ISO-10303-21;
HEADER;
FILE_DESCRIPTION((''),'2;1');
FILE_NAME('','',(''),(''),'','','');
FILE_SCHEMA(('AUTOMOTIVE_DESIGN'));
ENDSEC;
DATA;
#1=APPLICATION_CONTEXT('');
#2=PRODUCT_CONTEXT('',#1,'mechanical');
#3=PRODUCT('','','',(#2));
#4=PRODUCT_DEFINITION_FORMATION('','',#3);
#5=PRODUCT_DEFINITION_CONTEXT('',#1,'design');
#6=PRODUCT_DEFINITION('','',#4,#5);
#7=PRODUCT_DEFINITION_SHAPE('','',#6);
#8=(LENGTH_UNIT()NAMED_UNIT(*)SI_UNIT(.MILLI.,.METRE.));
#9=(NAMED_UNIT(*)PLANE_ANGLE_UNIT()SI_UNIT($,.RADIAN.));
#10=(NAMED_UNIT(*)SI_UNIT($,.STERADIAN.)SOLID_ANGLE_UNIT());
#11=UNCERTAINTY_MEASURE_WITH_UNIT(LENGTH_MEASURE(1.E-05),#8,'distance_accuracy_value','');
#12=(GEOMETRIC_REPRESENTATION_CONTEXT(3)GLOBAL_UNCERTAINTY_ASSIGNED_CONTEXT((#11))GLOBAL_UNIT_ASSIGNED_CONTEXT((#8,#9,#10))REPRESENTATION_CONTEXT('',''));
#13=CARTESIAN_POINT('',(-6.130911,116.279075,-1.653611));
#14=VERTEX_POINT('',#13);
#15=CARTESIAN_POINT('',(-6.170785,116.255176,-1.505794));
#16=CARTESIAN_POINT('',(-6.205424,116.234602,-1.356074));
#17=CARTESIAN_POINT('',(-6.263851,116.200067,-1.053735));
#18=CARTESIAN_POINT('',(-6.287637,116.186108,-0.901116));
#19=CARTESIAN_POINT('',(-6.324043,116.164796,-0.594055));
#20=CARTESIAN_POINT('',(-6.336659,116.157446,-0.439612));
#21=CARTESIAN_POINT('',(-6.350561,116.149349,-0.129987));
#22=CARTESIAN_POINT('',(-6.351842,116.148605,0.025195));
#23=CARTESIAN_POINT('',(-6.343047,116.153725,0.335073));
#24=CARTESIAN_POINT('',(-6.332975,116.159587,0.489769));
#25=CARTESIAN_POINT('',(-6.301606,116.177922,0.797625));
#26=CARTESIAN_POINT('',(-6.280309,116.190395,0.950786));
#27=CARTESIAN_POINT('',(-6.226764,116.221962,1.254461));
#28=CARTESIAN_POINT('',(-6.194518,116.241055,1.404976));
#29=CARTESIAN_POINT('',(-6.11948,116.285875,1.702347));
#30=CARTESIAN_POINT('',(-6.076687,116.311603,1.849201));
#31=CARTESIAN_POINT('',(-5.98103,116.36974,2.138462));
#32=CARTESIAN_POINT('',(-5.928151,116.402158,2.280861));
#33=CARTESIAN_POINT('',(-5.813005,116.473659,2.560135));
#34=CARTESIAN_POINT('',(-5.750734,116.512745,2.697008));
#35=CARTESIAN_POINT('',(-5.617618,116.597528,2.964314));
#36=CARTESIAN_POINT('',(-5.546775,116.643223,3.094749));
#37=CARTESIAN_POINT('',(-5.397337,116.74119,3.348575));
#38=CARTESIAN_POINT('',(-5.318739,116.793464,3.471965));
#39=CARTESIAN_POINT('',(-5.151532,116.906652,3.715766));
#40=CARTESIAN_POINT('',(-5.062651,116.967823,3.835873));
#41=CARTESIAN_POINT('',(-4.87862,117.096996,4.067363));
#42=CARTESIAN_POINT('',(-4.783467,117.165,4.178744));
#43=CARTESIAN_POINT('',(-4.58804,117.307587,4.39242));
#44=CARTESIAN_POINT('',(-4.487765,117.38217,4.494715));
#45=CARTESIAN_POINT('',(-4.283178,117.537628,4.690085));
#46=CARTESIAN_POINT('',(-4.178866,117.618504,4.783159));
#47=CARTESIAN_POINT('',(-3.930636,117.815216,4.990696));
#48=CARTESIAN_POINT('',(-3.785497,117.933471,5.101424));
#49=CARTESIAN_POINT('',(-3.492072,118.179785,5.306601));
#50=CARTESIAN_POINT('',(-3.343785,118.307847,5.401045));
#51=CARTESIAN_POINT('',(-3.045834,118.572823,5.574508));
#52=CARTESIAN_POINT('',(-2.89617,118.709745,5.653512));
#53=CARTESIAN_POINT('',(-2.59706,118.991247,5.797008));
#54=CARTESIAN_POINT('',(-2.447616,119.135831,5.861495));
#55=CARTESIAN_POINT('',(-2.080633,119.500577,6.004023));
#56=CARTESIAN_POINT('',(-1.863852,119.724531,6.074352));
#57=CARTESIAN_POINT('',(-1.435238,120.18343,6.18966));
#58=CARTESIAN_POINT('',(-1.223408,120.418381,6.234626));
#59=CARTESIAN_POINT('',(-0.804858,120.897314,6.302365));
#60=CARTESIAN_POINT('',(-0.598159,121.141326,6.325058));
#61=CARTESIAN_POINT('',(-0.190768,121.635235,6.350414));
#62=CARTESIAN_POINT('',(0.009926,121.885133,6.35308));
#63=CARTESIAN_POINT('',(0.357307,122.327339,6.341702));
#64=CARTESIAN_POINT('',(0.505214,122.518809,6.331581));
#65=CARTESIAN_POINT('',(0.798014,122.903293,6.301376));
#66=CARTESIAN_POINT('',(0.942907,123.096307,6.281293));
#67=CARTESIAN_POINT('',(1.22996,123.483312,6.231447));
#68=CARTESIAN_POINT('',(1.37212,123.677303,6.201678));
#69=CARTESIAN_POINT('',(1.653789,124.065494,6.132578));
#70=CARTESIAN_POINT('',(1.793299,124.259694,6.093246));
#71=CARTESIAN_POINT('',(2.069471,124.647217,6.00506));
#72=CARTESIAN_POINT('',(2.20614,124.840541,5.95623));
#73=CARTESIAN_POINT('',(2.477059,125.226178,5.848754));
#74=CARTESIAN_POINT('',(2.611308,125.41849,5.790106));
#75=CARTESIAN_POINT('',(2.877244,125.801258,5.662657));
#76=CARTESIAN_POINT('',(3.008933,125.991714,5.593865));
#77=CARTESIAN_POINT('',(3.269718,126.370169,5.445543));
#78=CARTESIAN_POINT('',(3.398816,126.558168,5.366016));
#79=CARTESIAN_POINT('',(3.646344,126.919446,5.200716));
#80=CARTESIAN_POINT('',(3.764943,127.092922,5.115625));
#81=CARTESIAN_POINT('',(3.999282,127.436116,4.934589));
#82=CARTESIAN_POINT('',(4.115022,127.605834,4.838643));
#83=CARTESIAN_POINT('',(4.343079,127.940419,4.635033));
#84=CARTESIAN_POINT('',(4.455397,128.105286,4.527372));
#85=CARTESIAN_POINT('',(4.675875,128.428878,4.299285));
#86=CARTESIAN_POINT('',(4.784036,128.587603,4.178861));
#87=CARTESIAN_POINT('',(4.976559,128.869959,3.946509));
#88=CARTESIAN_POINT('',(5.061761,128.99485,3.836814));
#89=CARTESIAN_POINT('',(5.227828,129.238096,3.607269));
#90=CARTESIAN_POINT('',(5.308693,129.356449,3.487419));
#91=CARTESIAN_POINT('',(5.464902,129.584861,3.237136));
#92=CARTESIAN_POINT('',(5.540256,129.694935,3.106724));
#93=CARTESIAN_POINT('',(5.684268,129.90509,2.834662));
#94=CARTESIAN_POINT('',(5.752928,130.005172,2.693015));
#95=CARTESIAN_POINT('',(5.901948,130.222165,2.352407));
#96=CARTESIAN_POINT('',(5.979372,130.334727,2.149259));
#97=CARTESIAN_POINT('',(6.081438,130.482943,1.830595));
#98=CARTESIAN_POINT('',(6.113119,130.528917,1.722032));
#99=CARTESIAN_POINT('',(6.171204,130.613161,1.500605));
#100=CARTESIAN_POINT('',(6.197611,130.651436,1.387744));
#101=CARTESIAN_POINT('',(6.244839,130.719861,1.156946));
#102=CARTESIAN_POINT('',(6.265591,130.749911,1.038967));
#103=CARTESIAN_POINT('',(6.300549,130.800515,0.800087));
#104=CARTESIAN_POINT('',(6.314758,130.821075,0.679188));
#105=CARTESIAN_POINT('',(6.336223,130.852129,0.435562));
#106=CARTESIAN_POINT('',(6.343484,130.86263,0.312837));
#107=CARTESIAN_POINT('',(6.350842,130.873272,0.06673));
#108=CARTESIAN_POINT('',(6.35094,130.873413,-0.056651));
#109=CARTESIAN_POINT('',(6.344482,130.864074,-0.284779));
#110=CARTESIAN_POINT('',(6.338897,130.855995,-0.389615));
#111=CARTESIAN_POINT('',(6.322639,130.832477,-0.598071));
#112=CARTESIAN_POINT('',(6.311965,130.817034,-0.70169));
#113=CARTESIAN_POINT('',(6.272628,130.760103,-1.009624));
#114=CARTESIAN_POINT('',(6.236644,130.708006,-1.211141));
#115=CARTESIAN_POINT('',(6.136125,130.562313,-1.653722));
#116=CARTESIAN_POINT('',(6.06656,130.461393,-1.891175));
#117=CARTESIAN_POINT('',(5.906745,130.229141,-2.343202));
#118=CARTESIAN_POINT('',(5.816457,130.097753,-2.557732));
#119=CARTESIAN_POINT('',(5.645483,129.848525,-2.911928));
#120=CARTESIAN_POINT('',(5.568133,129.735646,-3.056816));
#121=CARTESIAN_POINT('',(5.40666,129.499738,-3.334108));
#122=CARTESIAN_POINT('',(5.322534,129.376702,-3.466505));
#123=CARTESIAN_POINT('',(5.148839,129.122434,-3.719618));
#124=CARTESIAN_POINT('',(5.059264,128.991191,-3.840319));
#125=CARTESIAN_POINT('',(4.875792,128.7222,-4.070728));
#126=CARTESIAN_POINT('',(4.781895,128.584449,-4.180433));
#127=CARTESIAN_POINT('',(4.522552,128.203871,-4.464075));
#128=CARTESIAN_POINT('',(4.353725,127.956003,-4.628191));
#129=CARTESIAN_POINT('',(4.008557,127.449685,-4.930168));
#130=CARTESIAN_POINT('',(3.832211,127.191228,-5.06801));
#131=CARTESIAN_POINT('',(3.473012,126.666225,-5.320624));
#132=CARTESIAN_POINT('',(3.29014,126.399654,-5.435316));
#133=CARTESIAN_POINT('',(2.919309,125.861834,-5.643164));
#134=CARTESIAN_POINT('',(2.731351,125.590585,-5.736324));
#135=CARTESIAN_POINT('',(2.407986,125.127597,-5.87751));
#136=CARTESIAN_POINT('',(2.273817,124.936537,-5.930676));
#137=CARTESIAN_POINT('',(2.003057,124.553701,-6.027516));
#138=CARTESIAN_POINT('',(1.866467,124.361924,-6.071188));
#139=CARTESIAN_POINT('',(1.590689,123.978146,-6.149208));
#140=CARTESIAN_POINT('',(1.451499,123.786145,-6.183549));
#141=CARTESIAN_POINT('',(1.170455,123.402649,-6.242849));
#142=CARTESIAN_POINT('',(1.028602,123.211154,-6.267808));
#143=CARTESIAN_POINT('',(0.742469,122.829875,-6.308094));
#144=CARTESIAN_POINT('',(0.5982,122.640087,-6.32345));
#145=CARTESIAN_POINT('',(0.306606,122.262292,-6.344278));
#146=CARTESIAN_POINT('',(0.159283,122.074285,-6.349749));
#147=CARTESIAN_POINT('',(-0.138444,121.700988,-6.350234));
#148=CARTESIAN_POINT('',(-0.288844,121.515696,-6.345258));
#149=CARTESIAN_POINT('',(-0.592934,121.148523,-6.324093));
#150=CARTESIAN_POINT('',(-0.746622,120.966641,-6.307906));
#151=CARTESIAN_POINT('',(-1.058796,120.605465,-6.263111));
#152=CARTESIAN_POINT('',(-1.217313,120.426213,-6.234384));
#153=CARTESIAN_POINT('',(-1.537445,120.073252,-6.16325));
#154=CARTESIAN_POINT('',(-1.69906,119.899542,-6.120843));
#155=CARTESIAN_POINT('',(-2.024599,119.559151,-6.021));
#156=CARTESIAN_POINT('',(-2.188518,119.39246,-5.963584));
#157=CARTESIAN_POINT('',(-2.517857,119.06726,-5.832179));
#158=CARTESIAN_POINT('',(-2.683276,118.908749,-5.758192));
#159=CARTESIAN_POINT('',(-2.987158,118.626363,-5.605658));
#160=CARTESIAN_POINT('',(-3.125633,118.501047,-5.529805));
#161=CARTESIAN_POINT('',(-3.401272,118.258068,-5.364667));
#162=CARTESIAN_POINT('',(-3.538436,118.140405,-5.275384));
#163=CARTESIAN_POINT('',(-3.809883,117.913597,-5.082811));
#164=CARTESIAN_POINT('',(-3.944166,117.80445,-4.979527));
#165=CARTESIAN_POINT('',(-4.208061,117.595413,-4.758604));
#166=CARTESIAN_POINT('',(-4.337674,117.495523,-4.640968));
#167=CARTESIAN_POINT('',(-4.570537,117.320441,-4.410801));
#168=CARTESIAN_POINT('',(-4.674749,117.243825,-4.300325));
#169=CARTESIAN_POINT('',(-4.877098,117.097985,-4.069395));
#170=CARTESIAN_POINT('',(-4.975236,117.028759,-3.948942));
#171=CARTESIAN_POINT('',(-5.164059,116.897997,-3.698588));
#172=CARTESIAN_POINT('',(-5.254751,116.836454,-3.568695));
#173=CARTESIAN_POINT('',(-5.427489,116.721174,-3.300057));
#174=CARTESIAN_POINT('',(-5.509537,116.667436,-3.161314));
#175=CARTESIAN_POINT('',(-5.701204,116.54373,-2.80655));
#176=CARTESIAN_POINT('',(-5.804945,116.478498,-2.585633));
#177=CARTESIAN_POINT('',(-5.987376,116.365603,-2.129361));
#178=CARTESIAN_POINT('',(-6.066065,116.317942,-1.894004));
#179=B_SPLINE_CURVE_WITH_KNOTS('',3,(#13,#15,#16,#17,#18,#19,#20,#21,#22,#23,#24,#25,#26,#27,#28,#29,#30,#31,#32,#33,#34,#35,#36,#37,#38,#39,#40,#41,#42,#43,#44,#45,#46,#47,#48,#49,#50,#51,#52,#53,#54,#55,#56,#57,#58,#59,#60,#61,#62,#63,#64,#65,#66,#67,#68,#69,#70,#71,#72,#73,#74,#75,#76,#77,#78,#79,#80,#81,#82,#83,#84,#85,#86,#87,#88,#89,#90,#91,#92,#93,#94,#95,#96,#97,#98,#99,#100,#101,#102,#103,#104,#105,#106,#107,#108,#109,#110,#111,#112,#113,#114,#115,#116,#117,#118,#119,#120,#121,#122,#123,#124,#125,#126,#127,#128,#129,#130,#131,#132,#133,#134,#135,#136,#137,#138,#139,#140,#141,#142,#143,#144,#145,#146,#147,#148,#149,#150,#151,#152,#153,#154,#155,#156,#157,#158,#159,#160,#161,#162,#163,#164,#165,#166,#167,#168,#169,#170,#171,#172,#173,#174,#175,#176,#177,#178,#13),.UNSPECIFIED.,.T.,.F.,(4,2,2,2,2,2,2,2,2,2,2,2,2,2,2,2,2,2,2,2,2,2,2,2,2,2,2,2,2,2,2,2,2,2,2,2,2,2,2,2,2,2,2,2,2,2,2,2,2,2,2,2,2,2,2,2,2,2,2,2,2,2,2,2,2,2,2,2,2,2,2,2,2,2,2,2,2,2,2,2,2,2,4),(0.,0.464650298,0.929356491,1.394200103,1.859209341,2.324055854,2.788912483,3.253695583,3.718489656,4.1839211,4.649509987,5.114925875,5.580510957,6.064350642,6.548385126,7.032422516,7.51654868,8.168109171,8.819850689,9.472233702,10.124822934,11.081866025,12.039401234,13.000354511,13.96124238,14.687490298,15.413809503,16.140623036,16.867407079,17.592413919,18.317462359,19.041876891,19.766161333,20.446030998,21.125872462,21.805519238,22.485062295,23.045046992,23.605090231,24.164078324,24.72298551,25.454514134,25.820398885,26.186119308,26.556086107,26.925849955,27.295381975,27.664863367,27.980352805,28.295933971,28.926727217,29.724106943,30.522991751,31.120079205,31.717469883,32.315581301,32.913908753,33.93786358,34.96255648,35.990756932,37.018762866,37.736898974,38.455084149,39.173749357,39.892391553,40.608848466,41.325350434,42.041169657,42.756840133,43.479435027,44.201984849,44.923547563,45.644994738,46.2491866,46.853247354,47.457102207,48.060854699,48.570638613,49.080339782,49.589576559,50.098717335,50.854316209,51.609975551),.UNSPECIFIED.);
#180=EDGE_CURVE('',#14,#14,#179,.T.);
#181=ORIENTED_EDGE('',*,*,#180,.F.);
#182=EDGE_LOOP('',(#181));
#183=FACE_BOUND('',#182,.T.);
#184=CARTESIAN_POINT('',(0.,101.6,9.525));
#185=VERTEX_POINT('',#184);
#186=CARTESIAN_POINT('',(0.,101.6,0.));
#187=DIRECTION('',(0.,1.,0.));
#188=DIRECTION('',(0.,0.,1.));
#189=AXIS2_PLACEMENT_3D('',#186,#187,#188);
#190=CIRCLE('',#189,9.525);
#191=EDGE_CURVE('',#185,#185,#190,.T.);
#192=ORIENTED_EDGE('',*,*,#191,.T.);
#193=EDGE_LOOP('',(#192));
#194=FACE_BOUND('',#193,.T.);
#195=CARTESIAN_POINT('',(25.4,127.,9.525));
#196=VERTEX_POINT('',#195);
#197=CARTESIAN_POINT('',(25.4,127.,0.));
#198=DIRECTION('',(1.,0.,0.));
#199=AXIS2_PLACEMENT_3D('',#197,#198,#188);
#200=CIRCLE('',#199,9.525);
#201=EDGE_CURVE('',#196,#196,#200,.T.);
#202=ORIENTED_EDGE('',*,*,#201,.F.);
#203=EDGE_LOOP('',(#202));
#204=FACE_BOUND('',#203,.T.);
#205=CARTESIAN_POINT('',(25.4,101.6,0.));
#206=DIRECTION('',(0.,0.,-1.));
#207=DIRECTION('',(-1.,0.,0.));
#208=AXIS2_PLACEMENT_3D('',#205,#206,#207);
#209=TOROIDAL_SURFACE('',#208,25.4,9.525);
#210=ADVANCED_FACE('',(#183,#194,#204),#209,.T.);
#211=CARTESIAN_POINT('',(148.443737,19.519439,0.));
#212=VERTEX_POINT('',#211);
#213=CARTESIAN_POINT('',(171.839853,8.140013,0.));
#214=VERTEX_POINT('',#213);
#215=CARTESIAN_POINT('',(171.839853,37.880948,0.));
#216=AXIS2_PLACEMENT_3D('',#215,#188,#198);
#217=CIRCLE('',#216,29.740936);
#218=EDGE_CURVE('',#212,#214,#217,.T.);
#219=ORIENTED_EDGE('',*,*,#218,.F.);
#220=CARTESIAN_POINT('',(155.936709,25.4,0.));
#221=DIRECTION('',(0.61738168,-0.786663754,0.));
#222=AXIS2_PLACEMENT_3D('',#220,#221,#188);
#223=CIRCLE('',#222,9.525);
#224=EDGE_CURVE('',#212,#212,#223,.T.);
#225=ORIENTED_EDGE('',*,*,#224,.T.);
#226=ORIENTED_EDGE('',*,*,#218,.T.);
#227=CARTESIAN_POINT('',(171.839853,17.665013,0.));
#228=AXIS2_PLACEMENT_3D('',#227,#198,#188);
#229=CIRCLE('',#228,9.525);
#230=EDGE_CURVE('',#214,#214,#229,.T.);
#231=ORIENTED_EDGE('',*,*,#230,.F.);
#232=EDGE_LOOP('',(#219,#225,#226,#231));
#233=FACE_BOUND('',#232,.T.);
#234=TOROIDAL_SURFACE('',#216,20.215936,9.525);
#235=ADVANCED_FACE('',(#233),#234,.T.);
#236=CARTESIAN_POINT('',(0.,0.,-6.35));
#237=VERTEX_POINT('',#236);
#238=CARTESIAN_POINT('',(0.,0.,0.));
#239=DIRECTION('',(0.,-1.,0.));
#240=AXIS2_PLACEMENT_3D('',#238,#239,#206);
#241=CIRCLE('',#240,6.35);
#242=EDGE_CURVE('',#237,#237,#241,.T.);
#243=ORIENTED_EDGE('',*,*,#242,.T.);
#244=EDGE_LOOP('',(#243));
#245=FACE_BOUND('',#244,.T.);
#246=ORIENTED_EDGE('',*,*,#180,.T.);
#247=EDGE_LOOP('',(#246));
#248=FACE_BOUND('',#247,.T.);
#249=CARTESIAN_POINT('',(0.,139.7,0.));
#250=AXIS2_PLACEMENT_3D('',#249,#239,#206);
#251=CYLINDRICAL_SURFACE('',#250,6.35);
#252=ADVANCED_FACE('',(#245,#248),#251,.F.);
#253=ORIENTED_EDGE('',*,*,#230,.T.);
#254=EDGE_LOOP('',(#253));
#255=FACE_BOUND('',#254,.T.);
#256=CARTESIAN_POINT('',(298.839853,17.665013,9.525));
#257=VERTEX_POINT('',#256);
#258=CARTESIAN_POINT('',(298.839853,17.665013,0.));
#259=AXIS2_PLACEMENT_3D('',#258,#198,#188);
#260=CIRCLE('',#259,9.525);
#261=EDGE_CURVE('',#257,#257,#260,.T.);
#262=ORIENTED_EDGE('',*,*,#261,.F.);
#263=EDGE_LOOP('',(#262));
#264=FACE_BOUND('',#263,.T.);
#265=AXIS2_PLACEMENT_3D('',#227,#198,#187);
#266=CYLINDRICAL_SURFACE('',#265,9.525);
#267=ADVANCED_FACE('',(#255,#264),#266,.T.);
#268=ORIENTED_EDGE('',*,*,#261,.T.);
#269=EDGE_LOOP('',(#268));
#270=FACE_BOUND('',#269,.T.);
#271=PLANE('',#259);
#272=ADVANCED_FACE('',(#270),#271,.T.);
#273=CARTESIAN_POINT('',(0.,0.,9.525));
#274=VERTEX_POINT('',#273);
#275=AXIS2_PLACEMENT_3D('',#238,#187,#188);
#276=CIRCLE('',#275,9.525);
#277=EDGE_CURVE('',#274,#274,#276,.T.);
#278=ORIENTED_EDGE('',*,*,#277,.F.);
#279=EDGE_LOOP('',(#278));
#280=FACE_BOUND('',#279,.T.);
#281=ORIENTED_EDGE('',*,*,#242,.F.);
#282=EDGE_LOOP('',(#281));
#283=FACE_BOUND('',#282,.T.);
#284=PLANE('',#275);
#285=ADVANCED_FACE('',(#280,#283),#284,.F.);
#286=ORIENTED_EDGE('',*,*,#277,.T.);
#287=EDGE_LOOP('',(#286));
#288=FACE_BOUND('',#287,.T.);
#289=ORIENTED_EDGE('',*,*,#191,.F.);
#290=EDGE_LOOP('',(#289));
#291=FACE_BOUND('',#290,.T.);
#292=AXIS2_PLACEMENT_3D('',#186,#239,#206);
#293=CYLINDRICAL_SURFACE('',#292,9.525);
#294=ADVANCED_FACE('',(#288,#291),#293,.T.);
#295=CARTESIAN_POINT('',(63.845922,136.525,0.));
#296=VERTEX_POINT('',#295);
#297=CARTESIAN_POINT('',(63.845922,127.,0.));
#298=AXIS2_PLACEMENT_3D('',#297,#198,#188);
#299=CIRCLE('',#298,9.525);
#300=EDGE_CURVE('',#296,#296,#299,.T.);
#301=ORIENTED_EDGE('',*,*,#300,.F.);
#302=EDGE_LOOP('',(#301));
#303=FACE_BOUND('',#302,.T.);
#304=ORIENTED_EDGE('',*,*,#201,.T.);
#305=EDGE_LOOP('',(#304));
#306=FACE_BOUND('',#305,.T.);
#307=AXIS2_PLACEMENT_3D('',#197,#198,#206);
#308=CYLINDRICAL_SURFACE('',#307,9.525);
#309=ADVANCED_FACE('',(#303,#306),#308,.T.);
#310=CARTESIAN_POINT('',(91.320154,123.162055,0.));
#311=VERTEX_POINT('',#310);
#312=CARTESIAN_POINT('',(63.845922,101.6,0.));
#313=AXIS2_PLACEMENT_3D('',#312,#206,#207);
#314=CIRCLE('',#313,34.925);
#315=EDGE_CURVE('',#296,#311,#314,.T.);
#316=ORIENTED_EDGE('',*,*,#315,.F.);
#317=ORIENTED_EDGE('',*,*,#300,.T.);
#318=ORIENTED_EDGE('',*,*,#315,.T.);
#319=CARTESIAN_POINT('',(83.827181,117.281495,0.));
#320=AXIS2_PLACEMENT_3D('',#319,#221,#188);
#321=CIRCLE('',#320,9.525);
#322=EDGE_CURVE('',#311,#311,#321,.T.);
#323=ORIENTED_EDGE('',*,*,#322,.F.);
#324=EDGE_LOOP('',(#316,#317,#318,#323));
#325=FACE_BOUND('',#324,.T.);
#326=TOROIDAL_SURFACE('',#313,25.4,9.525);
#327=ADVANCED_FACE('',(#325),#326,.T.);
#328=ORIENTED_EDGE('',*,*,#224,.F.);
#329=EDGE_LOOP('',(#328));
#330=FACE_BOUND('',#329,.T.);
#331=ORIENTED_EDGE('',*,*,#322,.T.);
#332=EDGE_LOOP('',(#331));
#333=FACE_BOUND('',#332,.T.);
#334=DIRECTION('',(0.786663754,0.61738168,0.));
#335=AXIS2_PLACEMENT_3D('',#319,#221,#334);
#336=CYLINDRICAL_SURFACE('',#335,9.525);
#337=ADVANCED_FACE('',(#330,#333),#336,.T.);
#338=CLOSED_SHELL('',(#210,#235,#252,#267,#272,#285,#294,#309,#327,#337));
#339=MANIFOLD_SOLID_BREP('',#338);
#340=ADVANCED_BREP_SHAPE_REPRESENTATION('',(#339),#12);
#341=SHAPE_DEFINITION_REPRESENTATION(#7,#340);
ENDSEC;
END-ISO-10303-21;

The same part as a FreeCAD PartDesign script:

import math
import FreeCAD as App
import Part
import Sketcher
Q = App.Units.Quantity

doc = App.newDocument("Part")
body = doc.addObject("PartDesign::Body", "Body")

sketch1 = body.newObject("Sketcher::SketchObject", "Sketch")
sketch1.AttachmentSupport = (doc.getObject("XZ_Plane"), [""])
sketch1.MapMode = "FlatFace"
sketch1.addGeometry(Part.Circle(App.Vector(0, 0, 0), App.Vector(0, 0, 1), 10), False)
sketch1.addConstraint([
    Sketcher.Constraint("Coincident", 0, 3, -1, 1),
    Sketcher.Constraint("Diameter", 0, Q("0.75 in")),
])

sketch2 = body.newObject("Sketcher::SketchObject", "Sketch001")
sketch2.AttachmentSupport = (doc.getObject("XY_Plane"), [""])
sketch2.MapMode = "FlatFace"
sketch2.addGeometry([
    Part.LineSegment(App.Vector(0, 0, 0), App.Vector(0, 102, 0)),
    Part.ArcOfCircle(Part.Circle(App.Vector(25, 102, 0), App.Vector(0, 0, 1), 25), math.radians(90), math.radians(180)),
    Part.LineSegment(App.Vector(25, 127, 0), App.Vector(64, 127, 0)),
    Part.ArcOfCircle(Part.Circle(App.Vector(64, 102, 0), App.Vector(0, 0, 1), 25), math.radians(38), math.radians(90)),
    Part.LineSegment(App.Vector(84, 117, 0), App.Vector(156, 25, 0)),
    Part.ArcOfCircle(Part.Circle(App.Vector(172, 38, 0), App.Vector(0, 0, 1), 20), math.radians(-142), math.radians(-90)),
    Part.LineSegment(App.Vector(172, 18, 0), App.Vector(299, 18, 0)),
], False)
sketch2.addConstraint([
    Sketcher.Constraint("Tangent", 0, 2, 1, 2),
    Sketcher.Constraint("Tangent", 1, 1, 2, 1),
    Sketcher.Constraint("Tangent", 2, 2, 3, 2),
    Sketcher.Constraint("Tangent", 3, 1, 4, 1),
    Sketcher.Constraint("Tangent", 4, 2, 5, 1),
    Sketcher.Constraint("Tangent", 5, 2, 6, 1),
    Sketcher.Constraint("Vertical", 0),
    Sketcher.Constraint("Horizontal", 2),
    Sketcher.Constraint("Horizontal", 6),
    Sketcher.Constraint("Coincident", 0, 1, -1, 1),
    Sketcher.Constraint("Equal", 1, 3),
    Sketcher.Constraint("Radius", 1, Q("1 in")),
    Sketcher.Constraint("DistanceX", 6, 1, 6, 2, Q("5 in")),
    Sketcher.Constraint("DistanceY", 0, 1, 0, 2, Q("4 in")),
    Sketcher.Constraint("DistanceY", -1, 1, 4, 2, Q("1 in")),
    Sketcher.Constraint("Radius", 5, Q("20.215936 mm")),
    Sketcher.Constraint("DistanceX", 2, 1, 2, 2, Q("38.445922 mm")),
    Sketcher.Constraint("DistanceY", -1, 1, 5, 3, Q("37.880948 mm")),
])
doc.recompute()

additivepipe = body.newObject("PartDesign::AdditivePipe", "AdditivePipe")
additivepipe.Profile = sketch1
additivepipe.Spine = (sketch2, ["Edge1", "Edge2", "Edge3", "Edge4", "Edge5", "Edge6", "Edge7"])

sketch3 = body.newObject("Sketcher::SketchObject", "Sketch002")
sketch3.AttachmentSupport = (doc.getObject("XZ_Plane"), [""])
sketch3.MapMode = "FlatFace"
sketch3.addGeometry(Part.Circle(App.Vector(0, 0, 0), App.Vector(0, 0, 1), 6), False)
sketch3.addConstraint([
    Sketcher.Constraint("Coincident", 0, 3, -1, 1),
    Sketcher.Constraint("Diameter", 0, Q("0.5 in")),
])
pocket1 = body.newObject("PartDesign::Pocket", "Pocket")
pocket1.Profile = sketch3
pocket1.Length = Q("5.5 in")

doc.recompute()
